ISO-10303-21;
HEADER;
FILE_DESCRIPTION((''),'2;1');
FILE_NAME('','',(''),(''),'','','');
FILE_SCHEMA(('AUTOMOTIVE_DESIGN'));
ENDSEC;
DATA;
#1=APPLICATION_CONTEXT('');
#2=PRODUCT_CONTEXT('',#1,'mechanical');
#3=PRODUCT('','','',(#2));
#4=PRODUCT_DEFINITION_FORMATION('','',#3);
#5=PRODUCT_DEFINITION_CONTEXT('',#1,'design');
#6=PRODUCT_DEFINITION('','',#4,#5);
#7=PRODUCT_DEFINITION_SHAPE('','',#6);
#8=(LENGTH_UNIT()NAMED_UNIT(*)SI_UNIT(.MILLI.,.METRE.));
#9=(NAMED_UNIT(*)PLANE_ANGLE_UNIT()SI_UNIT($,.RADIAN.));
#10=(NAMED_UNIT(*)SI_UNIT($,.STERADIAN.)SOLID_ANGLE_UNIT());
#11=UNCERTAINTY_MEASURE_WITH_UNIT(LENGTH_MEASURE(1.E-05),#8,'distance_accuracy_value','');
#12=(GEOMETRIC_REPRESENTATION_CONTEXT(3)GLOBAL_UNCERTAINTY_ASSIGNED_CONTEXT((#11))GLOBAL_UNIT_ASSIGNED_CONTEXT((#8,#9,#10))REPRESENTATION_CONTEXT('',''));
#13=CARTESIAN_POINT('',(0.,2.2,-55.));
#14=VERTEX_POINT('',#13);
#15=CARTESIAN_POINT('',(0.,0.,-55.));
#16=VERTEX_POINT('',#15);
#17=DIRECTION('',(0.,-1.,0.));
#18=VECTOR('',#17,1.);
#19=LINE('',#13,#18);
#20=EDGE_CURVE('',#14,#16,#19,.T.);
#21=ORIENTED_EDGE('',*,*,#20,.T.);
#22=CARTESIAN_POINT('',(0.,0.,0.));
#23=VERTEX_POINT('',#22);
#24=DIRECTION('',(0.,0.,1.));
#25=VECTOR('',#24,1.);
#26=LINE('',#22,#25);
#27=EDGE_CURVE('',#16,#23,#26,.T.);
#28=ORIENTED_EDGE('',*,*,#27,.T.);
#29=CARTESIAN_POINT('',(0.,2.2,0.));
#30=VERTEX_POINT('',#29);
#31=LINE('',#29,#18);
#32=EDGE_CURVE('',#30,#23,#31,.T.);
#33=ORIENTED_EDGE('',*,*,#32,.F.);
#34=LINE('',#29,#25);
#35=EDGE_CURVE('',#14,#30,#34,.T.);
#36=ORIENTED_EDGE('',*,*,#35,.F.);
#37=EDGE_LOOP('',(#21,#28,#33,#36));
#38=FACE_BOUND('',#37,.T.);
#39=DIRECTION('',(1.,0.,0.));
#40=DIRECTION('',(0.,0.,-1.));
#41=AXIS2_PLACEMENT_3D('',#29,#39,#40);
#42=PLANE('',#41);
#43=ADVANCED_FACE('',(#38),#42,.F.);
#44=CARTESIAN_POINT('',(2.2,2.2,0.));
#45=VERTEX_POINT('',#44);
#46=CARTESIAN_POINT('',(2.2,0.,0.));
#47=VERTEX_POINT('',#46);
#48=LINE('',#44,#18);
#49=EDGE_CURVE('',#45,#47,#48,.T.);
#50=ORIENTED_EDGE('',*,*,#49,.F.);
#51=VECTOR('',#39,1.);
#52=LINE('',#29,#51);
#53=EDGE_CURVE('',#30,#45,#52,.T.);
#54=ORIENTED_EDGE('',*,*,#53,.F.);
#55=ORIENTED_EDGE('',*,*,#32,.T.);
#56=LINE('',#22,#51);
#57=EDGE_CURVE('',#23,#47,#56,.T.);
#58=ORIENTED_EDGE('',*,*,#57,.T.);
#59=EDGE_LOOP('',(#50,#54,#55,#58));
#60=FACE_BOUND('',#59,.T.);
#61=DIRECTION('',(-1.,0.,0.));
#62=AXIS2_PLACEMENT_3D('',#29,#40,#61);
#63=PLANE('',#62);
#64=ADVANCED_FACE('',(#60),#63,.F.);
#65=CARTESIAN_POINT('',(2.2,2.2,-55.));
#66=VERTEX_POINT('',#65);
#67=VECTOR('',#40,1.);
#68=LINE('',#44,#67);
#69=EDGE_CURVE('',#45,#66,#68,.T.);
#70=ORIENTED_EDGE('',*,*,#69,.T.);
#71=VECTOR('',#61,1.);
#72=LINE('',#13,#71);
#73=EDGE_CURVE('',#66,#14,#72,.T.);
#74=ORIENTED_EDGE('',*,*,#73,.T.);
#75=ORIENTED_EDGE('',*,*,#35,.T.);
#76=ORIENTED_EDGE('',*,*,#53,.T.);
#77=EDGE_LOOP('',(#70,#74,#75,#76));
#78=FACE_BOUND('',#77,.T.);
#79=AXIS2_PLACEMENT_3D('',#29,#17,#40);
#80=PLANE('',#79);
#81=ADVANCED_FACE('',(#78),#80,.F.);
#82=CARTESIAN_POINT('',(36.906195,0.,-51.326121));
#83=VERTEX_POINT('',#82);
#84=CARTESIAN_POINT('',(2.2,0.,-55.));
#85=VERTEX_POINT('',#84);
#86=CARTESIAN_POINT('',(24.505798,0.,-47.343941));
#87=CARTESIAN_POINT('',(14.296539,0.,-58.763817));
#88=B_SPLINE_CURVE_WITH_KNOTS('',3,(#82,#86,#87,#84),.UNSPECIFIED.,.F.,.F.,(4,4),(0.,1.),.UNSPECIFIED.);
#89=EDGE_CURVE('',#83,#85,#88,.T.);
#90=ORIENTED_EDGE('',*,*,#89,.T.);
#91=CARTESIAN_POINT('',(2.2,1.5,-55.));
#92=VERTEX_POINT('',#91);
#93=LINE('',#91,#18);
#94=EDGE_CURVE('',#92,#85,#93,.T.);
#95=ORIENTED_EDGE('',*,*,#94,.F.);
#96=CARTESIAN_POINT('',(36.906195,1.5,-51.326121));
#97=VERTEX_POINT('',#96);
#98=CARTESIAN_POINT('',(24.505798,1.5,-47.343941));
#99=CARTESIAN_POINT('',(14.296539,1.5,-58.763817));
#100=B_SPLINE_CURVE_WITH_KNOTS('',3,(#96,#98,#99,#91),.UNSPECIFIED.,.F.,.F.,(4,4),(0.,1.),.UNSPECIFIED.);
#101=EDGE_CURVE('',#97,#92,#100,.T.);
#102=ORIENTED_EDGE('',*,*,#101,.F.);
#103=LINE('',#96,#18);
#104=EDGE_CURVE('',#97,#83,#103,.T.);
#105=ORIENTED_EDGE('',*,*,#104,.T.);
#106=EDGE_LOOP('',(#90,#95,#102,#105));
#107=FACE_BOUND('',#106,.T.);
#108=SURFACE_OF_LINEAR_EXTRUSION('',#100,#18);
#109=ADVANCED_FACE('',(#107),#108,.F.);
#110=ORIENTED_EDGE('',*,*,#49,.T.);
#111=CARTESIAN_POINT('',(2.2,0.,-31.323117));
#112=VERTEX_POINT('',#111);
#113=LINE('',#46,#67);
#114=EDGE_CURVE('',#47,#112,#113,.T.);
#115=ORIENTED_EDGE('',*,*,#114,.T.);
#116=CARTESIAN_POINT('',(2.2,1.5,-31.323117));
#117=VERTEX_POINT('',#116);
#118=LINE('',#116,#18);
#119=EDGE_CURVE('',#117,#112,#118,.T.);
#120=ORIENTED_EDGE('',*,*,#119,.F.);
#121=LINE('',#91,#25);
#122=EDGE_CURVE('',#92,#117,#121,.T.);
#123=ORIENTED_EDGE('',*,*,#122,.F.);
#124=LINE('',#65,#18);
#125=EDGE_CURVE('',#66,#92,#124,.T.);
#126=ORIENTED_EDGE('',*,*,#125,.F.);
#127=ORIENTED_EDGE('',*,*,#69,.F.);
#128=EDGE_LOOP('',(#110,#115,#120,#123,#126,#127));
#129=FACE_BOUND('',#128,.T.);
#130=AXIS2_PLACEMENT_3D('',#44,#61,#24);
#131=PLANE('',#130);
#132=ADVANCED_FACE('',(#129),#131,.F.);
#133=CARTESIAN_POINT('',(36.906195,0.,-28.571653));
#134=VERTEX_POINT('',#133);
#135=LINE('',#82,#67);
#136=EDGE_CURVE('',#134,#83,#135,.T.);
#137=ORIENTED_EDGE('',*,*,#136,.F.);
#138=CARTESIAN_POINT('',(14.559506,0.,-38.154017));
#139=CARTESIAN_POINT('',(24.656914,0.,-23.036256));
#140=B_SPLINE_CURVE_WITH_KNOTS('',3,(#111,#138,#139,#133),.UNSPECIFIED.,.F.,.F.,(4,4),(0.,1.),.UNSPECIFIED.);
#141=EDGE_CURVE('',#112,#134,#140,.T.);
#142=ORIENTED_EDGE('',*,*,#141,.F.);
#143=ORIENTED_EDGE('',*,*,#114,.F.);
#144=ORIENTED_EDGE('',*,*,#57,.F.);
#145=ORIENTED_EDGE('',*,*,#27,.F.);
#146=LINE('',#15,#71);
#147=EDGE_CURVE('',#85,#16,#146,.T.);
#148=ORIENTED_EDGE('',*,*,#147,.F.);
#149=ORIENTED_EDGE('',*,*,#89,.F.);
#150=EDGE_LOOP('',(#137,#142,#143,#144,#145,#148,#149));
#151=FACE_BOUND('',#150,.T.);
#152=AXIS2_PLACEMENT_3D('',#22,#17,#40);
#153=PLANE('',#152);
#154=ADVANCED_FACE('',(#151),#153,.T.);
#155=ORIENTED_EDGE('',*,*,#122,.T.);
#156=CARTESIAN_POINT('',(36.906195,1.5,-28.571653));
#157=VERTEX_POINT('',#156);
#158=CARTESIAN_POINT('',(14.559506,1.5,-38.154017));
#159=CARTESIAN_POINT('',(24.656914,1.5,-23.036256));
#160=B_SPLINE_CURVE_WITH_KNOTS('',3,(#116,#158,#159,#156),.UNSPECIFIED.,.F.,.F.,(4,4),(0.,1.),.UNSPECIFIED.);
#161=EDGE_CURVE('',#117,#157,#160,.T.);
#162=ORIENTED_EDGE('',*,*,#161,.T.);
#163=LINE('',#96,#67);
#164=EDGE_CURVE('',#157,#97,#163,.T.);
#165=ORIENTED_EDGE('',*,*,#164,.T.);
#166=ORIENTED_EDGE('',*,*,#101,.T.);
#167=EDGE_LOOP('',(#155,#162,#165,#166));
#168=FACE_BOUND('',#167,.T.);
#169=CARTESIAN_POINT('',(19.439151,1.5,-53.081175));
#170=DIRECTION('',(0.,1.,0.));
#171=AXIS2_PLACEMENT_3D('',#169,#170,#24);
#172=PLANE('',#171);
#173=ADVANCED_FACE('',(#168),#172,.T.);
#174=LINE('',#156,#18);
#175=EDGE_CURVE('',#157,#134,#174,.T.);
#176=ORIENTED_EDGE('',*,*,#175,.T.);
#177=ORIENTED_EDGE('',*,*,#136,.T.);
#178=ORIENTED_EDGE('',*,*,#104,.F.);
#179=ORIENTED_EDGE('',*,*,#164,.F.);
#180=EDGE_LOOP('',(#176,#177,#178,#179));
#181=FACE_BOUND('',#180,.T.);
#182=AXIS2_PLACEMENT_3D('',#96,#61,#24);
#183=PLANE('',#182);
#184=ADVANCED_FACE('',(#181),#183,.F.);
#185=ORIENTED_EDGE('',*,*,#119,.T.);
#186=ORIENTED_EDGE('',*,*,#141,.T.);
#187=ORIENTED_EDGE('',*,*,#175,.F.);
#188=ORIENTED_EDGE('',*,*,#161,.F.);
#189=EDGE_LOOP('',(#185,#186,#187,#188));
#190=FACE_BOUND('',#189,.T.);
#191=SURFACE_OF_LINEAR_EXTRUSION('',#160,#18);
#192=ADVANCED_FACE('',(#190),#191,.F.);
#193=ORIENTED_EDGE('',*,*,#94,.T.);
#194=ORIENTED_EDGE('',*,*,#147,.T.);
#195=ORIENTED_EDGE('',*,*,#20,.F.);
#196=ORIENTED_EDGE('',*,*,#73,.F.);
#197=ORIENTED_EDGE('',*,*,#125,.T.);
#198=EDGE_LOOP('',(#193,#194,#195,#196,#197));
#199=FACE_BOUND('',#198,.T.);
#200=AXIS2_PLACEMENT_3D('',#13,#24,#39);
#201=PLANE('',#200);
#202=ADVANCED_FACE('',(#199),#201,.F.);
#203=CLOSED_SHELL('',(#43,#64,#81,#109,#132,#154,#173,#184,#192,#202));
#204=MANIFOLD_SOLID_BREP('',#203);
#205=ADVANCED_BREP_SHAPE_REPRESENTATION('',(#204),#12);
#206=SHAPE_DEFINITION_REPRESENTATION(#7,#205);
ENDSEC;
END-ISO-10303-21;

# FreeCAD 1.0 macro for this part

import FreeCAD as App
import Part
import Sketcher
from FreeCAD import Vector


def add_polygon(sketch, points):
    """Adds a closed chain of lines whose ends are joined by coincident constraints."""
    first, n = sketch.GeometryCount, len(points)
    for a, b in zip(points, points[1:] + points[:1]):
        sketch.addGeometry(Part.LineSegment(App.Vector(*a, 0), App.Vector(*b, 0)), False)
    for i in range(n):
        sketch.addConstraint(Sketcher.Constraint("Coincident", first + i, 2, first + (i + 1) % n, 1))

doc = App.newDocument("Part")
body = doc.addObject("PartDesign::Body", "Body")

# Sketch on XZ plane
sketch1 = body.newObject("Sketcher::SketchObject", "Sketch")
sketch1.AttachmentSupport = (doc.getObject("XZ_Plane"), [""])
sketch1.MapMode = "FlatFace"
add_polygon(sketch1, [(0, -55), (0, 0), (2.2, 0), (2.2, -55)])  # lines 0-3
sketch1.addConstraint(Sketcher.Constraint("Vertical", 0))
sketch1.addConstraint(Sketcher.Constraint("Horizontal", 1))
sketch1.addConstraint(Sketcher.Constraint("Vertical", 2))
sketch1.addConstraint(Sketcher.Constraint("Horizontal", 3))
sketch1.addConstraint(Sketcher.Constraint("Coincident", 0, 2, -1, 1))
sketch1.addConstraint(Sketcher.Constraint("DistanceY", 0, 1, 0, 2, 55.0))
sketch1.addConstraint(Sketcher.Constraint("DistanceX", 1, 1, 1, 2, 2.2))
pad1 = body.newObject("PartDesign::Pad", "Pad")
pad1.Profile = sketch1
pad1.Length = 2.2
pad1.Reversed = True

# Sketch on XZ plane
sketch2 = body.newObject("Sketcher::SketchObject", "Sketch001")
sketch2.AttachmentSupport = (doc.getObject("XZ_Plane"), [""])
sketch2.MapMode = "FlatFace"
sketch2.addGeometry(Part.LineSegment(Vector(36.906195, -28.571653, 0), Vector(36.906195, -51.326121, 0)), False)
sketch2.addGeometry(Part.BSplineCurve([Vector(2.2, -55, 0), Vector(14.296539, -58.763817, 0), Vector(24.505798, -47.343941, 0), Vector(36.906195, -51.326121, 0)], [4, 4], [0, 1], False, 3, [1, 1, 1, 1], False), False)
sketch2.addGeometry(Part.LineSegment(Vector(2.2, -55, 0), Vector(2.2, -31.323117, 0)), False)
sketch2.addGeometry(Part.BSplineCurve([Vector(2.2, -31.323117, 0), Vector(14.559506, -38.154017, 0), Vector(24.656914, -23.036256, 0), Vector(36.906195, -28.571653, 0)], [4, 4], [0, 1], False, 3, [1, 1, 1, 1], False), False)
sketch2.addConstraint(Sketcher.Constraint("Block", 1))
sketch2.addConstraint(Sketcher.Constraint("Block", 3))
sketch2.addConstraint(Sketcher.Constraint("Coincident", 0, 2, 1, 2))
sketch2.addConstraint(Sketcher.Constraint("Coincident", 1, 1, 2, 1))
sketch2.addConstraint(Sketcher.Constraint("Coincident", 2, 2, 3, 1))
sketch2.addConstraint(Sketcher.Constraint("Coincident", 3, 2, 0, 1))
pad2 = body.newObject("PartDesign::Pad", "Pad001")
pad2.Profile = sketch2
pad2.Length = 1.5
pad2.Reversed = True

doc.recompute()
